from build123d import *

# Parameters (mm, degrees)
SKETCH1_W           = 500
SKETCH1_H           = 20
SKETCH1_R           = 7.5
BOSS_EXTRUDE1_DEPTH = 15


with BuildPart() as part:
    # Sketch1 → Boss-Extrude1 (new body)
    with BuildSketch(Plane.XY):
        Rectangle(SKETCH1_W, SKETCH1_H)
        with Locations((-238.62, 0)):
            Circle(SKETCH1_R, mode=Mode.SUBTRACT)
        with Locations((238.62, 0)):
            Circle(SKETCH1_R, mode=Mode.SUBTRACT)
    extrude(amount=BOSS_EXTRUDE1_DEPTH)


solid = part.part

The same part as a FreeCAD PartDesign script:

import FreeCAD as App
import Part
import Sketcher

V = App.Vector

doc = App.newDocument("Part")
body = doc.addObject("PartDesign::Body", "Body")

sketch1 = body.newObject("Sketcher::SketchObject", "Sketch")
sketch1.AttachmentSupport = (doc.getObject("XY_Plane"), [""])
sketch1.MapMode = "FlatFace"
sketch1.addGeometry(Part.LineSegment(V(-250, 10, 0), V(-250, -10, 0)), False)
sketch1.addGeometry(Part.LineSegment(V(-250, -10, 0), V(250, -10, 0)), False)
sketch1.addGeometry(Part.LineSegment(V(250, -10, 0), V(250, 10, 0)), False)
sketch1.addGeometry(Part.LineSegment(V(250, 10, 0), V(-250, 10, 0)), False)
sketch1.addGeometry(Part.Circle(V(-238.62, 0, 0), V(0, 0, 1), 7.5), False)
sketch1.addGeometry(Part.Circle(V(238.62, 0, 0), V(0, 0, 1), 7.5), False)
sketch1.addConstraint(Sketcher.Constraint("Coincident", 0, 2, 1, 1))
sketch1.addConstraint(Sketcher.Constraint("Coincident", 1, 2, 2, 1))
sketch1.addConstraint(Sketcher.Constraint("Coincident", 2, 2, 3, 1))
sketch1.addConstraint(Sketcher.Constraint("Coincident", 3, 2, 0, 1))
sketch1.addConstraint(Sketcher.Constraint("Vertical", 0))
sketch1.addConstraint(Sketcher.Constraint("Horizontal", 1))
sketch1.addConstraint(Sketcher.Constraint("Vertical", 2))
sketch1.addConstraint(Sketcher.Constraint("Horizontal", 3))
sketch1.addConstraint(Sketcher.Constraint("Equal", 4, 5))
sketch1.addConstraint(Sketcher.Constraint("Symmetric", 4, 3, 5, 3, -1, 1))
sketch1.addConstraint(Sketcher.Constraint("Symmetric", 0, 2, 2, 2, -1, 1))
sketch1.addConstraint(Sketcher.Constraint("PointOnObject", 4, 3, -1))
sketch1.addConstraint(Sketcher.Constraint("Diameter", 4, 15.0))
sketch1.addConstraint(Sketcher.Constraint("DistanceX", 1, 1, 1, 2, 500.0))
sketch1.addConstraint(Sketcher.Constraint("DistanceY", 0, 2, 0, 1, 20.0))
sketch1.addConstraint(Sketcher.Constraint("DistanceX", 4, 3, -1, 1, 238.62))
pad1 = body.newObject("PartDesign::Pad", "Pad")
pad1.Profile = sketch1
pad1.Length = 15

doc.recompute()
